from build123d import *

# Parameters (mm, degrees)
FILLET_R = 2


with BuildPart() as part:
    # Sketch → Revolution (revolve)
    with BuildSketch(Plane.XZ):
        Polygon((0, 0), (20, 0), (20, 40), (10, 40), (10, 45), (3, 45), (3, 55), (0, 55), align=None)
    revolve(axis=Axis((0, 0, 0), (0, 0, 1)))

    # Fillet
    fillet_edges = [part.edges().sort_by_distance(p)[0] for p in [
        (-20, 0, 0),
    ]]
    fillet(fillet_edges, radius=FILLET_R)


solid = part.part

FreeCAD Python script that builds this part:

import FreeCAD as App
import Part
import Sketcher
from FreeCAD import Vector
Q = App.Units.Quantity


def edges_at(feature, points):
    """Names of the edges that pass closest to the given points."""
    edges = feature.Shape.Edges
    near = lambda p: min(range(len(edges)), key=lambda i: edges[i].distToShape(Part.Vertex(*p))[0])
    return sorted({f"Edge{near(p) + 1}" for p in points})


def add_polygon(sketch, points):
    """Adds a closed chain of lines whose ends are joined by coincident constraints."""
    first, n = sketch.GeometryCount, len(points)
    for a, b in zip(points, points[1:] + points[:1]):
        sketch.addGeometry(Part.LineSegment(App.Vector(*a, 0), App.Vector(*b, 0)), False)
    for i in range(n):
        sketch.addConstraint(Sketcher.Constraint("Coincident", first + i, 2, first + (i + 1) % n, 1))

doc = App.newDocument("Part")
params = doc.addObject("Spreadsheet::Sheet", "Params")
for row, (alias, value) in enumerate([
    ("sketch1_width", "20 mm"),
    ("sketch1_width2", "10 mm"),
    ("sketch1_width3", "7 mm"),
    ("sketch1_height", "40 mm"),
    ("sketch1_height2", "5 mm"),
    ("revolution_angle", "360 deg"),
    ("fillet_radius", "2 mm"),
], start=1):
    params.set(f"A{row}", alias)
    params.set(f"B{row}", "=" + value)
    params.setAlias(f"B{row}", alias)

body = doc.addObject("PartDesign::Body", "Body")

# Sketch on XZ plane
sketch1 = body.newObject("Sketcher::SketchObject", "Sketch")
sketch1.AttachmentSupport = (doc.getObject("XZ_Plane"), [""])
sketch1.MapMode = "FlatFace"
add_polygon(sketch1, [(0, 0), (20, 0), (20, 40), (10, 40), (10, 45), (3, 45), (3, 55), (0, 55)])  # lines 0-7
sketch1.addConstraint([
    Sketcher.Constraint("Horizontal", 0),
    Sketcher.Constraint("Vertical", 1),
    Sketcher.Constraint("Horizontal", 2),
    Sketcher.Constraint("Vertical", 3),
    Sketcher.Constraint("Horizontal", 4),
    Sketcher.Constraint("Vertical", 5),
    Sketcher.Constraint("Horizontal", 6),
    Sketcher.Constraint("Vertical", 7),
    Sketcher.Constraint("Coincident", 7, 2, -1, 1),
    Sketcher.Constraint("Equal", 2, 5),
    Sketcher.Constraint("DistanceX", 0, 1, 0, 2, Q("20 mm")),
    Sketcher.Constraint("DistanceX", 2, 2, 2, 1, Q("10 mm")),
    Sketcher.Constraint("DistanceX", 4, 2, 4, 1, Q("7 mm")),
    Sketcher.Constraint("DistanceY", 1, 1, 1, 2, Q("40 mm")),
    Sketcher.Constraint("DistanceY", 3, 1, 3, 2, Q("5 mm")),
])
sketch1.setExpression("Constraints[18]", "Params.sketch1_width")
sketch1.setExpression("Constraints[19]", "Params.sketch1_width2")
sketch1.setExpression("Constraints[20]", "Params.sketch1_width3")
sketch1.setExpression("Constraints[21]", "Params.sketch1_height")
sketch1.setExpression("Constraints[22]", "Params.sketch1_height2")
revolution = body.newObject("PartDesign::Revolution", "Revolution")
revolution.Profile = sketch1
revolution.ReferenceAxis = (sketch1, ["V_Axis"])
revolution.setExpression("Angle", "Params.revolution_angle")
doc.recompute()

fillet = body.newObject("PartDesign::Fillet", "Fillet")
fillet.Base = (revolution, edges_at(revolution, [(-20, 0, 0)]))
fillet.setExpression("Radius", "Params.fillet_radius")

doc.recompute()
